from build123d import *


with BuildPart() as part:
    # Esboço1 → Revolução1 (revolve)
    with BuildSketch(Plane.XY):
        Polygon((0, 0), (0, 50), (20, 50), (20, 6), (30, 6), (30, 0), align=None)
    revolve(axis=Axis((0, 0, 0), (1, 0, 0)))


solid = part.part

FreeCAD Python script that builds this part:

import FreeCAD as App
import Part
import Sketcher
Q = App.Units.Quantity

doc = App.newDocument("Part")
params = doc.addObject("Spreadsheet::Sheet", "Params")
for row, (alias, value) in enumerate([
    ("sketch1_width", "30 mm"),
    ("sketch1_width2", "10 mm"),
    ("sketch1_height", "50 mm"),
    ("sketch1_height2", "6 mm"),
    ("revolution_angle", "360 deg"),
], start=1):
    params.set(f"A{row}", alias)
    params.set(f"B{row}", "=" + value)
    params.setAlias(f"B{row}", alias)

body = doc.addObject("PartDesign::Body", "Body")

# Sketch on XY plane
sketch1 = body.newObject("Sketcher::SketchObject", "Sketch")
sketch1.AttachmentSupport = (doc.getObject("XY_Plane"), [""])
sketch1.MapMode = "FlatFace"
sketch1.addGeometry(Part.LineSegment(App.Vector(0, 50, 0), App.Vector(0, 0, 0)), False)
sketch1.addGeometry(Part.LineSegment(App.Vector(0, 0, 0), App.Vector(30, 0, 0)), False)
sketch1.addGeometry(Part.LineSegment(App.Vector(30, 0, 0), App.Vector(30, 6, 0)), False)
sketch1.addGeometry(Part.LineSegment(App.Vector(30, 6, 0), App.Vector(20, 6, 0)), False)
sketch1.addGeometry(Part.LineSegment(App.Vector(20, 6, 0), App.Vector(20, 50, 0)), False)
sketch1.addGeometry(Part.LineSegment(App.Vector(20, 50, 0), App.Vector(0, 50, 0)), False)
sketch1.addConstraint(Sketcher.Constraint("Coincident", 0, 2, 1, 1))
sketch1.addConstraint(Sketcher.Constraint("Coincident", 1, 2, 2, 1))
sketch1.addConstraint(Sketcher.Constraint("Coincident", 2, 2, 3, 1))
sketch1.addConstraint(Sketcher.Constraint("Coincident", 3, 2, 4, 1))
sketch1.addConstraint(Sketcher.Constraint("Coincident", 4, 2, 5, 1))
sketch1.addConstraint(Sketcher.Constraint("Coincident", 5, 2, 0, 1))
sketch1.addConstraint(Sketcher.Constraint("Vertical", 0))
sketch1.addConstraint(Sketcher.Constraint("Horizontal", 1))
sketch1.addConstraint(Sketcher.Constraint("Vertical", 2))
sketch1.addConstraint(Sketcher.Constraint("Horizontal", 3))
sketch1.addConstraint(Sketcher.Constraint("Vertical", 4))
sketch1.addConstraint(Sketcher.Constraint("Horizontal", 5))
sketch1.addConstraint(Sketcher.Constraint("Coincident", 0, 2, -1, 1))
sketch1.addConstraint(Sketcher.Constraint("DistanceX", 1, 1, 1, 2, Q("30 mm")))
sketch1.addConstraint(Sketcher.Constraint("DistanceX", 3, 2, 3, 1, Q("10 mm")))
sketch1.addConstraint(Sketcher.Constraint("DistanceY", 0, 2, 0, 1, Q("50 mm")))
sketch1.addConstraint(Sketcher.Constraint("DistanceY", 2, 1, 2, 2, Q("6 mm")))
sketch1.setExpression("Constraints[13]", "Params.sketch1_width")
sketch1.setExpression("Constraints[14]", "Params.sketch1_width2")
sketch1.setExpression("Constraints[15]", "Params.sketch1_height")
sketch1.setExpression("Constraints[16]", "Params.sketch1_height2")
revolution = body.newObject("PartDesign::Revolution", "Revolution")
revolution.Profile = sketch1
revolution.ReferenceAxis = (sketch1, ["H_Axis"])
revolution.setExpression("Angle", "Params.revolution_angle")

doc.recompute()
